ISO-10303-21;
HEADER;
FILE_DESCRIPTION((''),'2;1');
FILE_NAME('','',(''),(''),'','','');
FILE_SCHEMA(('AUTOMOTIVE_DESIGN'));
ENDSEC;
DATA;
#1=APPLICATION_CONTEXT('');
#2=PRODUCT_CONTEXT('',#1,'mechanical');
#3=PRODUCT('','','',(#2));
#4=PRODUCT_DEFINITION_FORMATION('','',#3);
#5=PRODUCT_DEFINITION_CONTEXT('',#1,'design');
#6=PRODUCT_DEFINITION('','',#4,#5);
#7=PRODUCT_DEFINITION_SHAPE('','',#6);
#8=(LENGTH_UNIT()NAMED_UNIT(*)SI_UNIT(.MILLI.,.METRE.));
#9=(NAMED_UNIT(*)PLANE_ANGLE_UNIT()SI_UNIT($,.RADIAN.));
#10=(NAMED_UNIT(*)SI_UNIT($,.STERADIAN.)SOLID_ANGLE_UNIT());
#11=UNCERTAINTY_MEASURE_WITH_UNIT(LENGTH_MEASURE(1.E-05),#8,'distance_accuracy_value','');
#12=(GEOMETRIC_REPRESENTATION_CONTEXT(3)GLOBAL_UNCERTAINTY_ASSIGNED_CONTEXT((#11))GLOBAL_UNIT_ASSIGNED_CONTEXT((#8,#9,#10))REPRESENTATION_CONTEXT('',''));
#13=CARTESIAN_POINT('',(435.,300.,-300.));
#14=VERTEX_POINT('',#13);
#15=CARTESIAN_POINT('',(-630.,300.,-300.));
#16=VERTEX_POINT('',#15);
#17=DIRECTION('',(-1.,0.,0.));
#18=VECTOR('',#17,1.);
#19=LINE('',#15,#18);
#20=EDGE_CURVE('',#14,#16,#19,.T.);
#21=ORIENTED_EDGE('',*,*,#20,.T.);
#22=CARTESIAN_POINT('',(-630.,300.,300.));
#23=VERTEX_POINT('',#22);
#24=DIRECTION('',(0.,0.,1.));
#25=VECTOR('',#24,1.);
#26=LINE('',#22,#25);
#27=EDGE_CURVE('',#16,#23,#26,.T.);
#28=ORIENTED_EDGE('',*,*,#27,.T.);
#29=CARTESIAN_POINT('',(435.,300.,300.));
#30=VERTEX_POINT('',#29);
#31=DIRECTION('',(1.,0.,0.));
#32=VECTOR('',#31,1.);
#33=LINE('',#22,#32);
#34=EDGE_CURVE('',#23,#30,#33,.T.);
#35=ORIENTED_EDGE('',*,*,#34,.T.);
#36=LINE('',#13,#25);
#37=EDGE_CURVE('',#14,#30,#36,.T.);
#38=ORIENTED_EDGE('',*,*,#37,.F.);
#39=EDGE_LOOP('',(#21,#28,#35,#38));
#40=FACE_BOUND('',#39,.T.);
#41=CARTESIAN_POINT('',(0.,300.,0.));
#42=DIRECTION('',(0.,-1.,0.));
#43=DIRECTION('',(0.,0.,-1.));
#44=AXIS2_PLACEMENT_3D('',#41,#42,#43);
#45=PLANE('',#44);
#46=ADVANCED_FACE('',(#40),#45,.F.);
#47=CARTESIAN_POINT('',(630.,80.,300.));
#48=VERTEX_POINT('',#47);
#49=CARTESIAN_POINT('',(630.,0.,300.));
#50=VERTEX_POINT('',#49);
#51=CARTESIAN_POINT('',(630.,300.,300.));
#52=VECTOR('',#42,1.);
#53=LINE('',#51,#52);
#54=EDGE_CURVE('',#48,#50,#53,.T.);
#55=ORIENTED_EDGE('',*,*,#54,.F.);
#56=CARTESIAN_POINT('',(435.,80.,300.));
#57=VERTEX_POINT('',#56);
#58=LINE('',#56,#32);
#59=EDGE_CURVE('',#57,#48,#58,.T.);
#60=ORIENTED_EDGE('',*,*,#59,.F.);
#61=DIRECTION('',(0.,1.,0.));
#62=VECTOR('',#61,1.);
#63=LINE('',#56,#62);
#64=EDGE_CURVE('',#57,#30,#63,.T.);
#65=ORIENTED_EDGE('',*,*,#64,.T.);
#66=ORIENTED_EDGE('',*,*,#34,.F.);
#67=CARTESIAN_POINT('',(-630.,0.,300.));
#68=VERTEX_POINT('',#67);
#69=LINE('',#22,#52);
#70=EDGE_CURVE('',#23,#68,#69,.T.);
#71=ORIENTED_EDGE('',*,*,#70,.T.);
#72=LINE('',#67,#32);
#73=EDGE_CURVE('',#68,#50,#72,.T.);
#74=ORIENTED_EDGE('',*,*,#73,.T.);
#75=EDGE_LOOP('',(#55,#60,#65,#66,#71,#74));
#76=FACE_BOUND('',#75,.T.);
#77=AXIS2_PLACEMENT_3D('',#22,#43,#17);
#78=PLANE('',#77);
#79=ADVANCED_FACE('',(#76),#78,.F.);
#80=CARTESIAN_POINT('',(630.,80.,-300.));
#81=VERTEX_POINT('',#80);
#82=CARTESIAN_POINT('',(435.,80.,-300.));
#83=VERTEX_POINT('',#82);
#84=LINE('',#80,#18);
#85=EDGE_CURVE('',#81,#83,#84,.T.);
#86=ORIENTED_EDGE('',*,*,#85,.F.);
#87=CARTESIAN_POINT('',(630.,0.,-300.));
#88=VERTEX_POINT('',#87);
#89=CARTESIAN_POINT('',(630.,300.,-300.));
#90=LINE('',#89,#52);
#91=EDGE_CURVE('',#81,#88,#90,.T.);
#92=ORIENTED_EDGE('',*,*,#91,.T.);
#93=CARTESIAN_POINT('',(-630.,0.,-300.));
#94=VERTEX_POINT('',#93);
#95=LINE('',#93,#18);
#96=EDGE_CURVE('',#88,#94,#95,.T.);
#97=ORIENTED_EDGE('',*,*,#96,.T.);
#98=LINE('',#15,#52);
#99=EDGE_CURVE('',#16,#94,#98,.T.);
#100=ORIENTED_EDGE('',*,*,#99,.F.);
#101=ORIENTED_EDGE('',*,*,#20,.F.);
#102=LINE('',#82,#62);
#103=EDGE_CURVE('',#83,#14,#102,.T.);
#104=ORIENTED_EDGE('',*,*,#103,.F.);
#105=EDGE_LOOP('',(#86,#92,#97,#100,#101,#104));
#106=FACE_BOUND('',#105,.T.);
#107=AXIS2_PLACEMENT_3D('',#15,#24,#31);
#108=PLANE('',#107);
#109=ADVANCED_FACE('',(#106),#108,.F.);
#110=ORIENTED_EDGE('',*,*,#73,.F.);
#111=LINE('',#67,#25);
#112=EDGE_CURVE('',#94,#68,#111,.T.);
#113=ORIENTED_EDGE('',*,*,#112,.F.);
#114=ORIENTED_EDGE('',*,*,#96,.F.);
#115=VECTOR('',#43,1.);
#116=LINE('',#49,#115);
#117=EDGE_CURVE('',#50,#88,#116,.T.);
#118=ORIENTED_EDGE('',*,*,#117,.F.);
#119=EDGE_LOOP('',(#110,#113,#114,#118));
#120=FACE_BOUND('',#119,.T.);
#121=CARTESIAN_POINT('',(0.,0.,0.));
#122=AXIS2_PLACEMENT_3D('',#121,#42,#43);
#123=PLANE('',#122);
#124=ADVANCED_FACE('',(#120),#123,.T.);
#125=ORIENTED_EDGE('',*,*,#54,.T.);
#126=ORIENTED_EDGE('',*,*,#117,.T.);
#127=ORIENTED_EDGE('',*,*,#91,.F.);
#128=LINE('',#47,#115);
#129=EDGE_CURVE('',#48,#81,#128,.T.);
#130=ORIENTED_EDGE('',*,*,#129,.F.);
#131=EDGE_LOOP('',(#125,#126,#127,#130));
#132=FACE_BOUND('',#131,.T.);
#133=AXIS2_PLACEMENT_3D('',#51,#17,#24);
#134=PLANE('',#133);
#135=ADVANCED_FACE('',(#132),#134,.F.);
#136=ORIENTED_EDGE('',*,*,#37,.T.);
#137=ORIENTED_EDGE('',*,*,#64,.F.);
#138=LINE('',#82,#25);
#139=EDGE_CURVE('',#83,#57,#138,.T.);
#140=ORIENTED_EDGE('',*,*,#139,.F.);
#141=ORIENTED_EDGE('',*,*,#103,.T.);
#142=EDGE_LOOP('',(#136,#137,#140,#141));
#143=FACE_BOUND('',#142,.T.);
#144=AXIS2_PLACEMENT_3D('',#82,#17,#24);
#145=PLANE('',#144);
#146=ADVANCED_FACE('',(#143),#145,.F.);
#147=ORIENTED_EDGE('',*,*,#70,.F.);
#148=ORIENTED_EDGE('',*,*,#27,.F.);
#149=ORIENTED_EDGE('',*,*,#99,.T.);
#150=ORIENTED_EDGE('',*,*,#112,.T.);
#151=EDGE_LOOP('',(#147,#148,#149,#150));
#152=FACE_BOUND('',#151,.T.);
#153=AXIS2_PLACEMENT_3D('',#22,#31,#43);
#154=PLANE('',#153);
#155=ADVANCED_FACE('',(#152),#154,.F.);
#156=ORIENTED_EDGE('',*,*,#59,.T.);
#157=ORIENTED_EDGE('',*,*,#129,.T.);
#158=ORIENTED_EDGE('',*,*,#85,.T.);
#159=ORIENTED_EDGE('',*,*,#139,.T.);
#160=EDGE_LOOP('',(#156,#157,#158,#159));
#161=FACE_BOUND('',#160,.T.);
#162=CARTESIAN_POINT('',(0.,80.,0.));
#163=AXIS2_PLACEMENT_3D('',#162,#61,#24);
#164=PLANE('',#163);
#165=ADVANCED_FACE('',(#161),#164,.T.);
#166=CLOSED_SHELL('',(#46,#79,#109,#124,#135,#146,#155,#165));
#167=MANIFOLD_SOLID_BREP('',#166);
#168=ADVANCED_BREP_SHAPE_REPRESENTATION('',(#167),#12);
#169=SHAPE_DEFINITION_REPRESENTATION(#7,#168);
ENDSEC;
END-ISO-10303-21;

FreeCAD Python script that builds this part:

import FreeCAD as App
import Part
import Sketcher
from FreeCAD import Vector
Q = App.Units.Quantity

doc = App.newDocument("Part")
body = doc.addObject("PartDesign::Body", "Body")

# Sketch on XZ plane
sketch1 = body.newObject("Sketcher::SketchObject", "Sketch")
sketch1.AttachmentSupport = (doc.getObject("XZ_Plane"), [""])
sketch1.MapMode = "FlatFace"
sketch1.addGeometry([
    Part.LineSegment(Vector(-630, -300, 0), Vector(-630, 300, 0)),
    Part.LineSegment(Vector(-630, 300, 0), Vector(630, 300, 0)),
    Part.LineSegment(Vector(630, 300, 0), Vector(630, -300, 0)),
    Part.LineSegment(Vector(630, -300, 0), Vector(-630, -300, 0)),
], False)
sketch1.addConstraint([
    Sketcher.Constraint("Coincident", 0, 2, 1, 1),
    Sketcher.Constraint("Coincident", 1, 2, 2, 1),
    Sketcher.Constraint("Coincident", 2, 2, 3, 1),
    Sketcher.Constraint("Coincident", 3, 2, 0, 1),
    Sketcher.Constraint("Vertical", 0),
    Sketcher.Constraint("Horizontal", 1),
    Sketcher.Constraint("Vertical", 2),
    Sketcher.Constraint("Horizontal", 3),
    Sketcher.Constraint("Symmetric", 0, 2, 2, 2, -1, 1),
    Sketcher.Constraint("DistanceX", 1, 1, 1, 2, Q("1260 mm")),
    Sketcher.Constraint("DistanceY", 0, 1, 0, 2, Q("600 mm")),
])
pad1 = body.newObject("PartDesign::Pad", "Pad")
pad1.Profile = sketch1
pad1.Length = 300
pad1.Reversed = True

# Sketch on XZ plane
sketch2 = body.newObject("Sketcher::SketchObject", "Sketch001")
sketch2.AttachmentSupport = (doc.getObject("XZ_Plane"), [""])
sketch2.MapMode = "FlatFace"
sketch2.AttachmentOffset = App.Placement(Vector(0, 0, -300), App.Rotation())
sketch2.addGeometry([
    Part.LineSegment(Vector(435, -300, 0), Vector(435, 300, 0)),
    Part.LineSegment(Vector(435, 300, 0), Vector(630, 300, 0)),
    Part.LineSegment(Vector(630, 300, 0), Vector(630, -300, 0)),
    Part.LineSegment(Vector(630, -300, 0), Vector(435, -300, 0)),
], False)
sketch2.addConstraint([
    Sketcher.Constraint("Coincident", 0, 2, 1, 1),
    Sketcher.Constraint("Coincident", 1, 2, 2, 1),
    Sketcher.Constraint("Coincident", 2, 2, 3, 1),
    Sketcher.Constraint("Coincident", 3, 2, 0, 1),
    Sketcher.Constraint("Vertical", 0),
    Sketcher.Constraint("Horizontal", 1),
    Sketcher.Constraint("Vertical", 2),
    Sketcher.Constraint("Horizontal", 3),
    Sketcher.Constraint("DistanceX", 1, 1, 1, 2, Q("195 mm")),
    Sketcher.Constraint("DistanceY", 0, 1, 0, 2, Q("600 mm")),
    Sketcher.Constraint("DistanceX", -1, 1, 0, 2, Q("435 mm")),
    Sketcher.Constraint("DistanceY", -1, 1, 0, 2, Q("300 mm")),
])
pocket1 = body.newObject("PartDesign::Pocket", "Pocket")
pocket1.Profile = sketch2
pocket1.Length = 220
pocket1.Reversed = True

doc.recompute()
